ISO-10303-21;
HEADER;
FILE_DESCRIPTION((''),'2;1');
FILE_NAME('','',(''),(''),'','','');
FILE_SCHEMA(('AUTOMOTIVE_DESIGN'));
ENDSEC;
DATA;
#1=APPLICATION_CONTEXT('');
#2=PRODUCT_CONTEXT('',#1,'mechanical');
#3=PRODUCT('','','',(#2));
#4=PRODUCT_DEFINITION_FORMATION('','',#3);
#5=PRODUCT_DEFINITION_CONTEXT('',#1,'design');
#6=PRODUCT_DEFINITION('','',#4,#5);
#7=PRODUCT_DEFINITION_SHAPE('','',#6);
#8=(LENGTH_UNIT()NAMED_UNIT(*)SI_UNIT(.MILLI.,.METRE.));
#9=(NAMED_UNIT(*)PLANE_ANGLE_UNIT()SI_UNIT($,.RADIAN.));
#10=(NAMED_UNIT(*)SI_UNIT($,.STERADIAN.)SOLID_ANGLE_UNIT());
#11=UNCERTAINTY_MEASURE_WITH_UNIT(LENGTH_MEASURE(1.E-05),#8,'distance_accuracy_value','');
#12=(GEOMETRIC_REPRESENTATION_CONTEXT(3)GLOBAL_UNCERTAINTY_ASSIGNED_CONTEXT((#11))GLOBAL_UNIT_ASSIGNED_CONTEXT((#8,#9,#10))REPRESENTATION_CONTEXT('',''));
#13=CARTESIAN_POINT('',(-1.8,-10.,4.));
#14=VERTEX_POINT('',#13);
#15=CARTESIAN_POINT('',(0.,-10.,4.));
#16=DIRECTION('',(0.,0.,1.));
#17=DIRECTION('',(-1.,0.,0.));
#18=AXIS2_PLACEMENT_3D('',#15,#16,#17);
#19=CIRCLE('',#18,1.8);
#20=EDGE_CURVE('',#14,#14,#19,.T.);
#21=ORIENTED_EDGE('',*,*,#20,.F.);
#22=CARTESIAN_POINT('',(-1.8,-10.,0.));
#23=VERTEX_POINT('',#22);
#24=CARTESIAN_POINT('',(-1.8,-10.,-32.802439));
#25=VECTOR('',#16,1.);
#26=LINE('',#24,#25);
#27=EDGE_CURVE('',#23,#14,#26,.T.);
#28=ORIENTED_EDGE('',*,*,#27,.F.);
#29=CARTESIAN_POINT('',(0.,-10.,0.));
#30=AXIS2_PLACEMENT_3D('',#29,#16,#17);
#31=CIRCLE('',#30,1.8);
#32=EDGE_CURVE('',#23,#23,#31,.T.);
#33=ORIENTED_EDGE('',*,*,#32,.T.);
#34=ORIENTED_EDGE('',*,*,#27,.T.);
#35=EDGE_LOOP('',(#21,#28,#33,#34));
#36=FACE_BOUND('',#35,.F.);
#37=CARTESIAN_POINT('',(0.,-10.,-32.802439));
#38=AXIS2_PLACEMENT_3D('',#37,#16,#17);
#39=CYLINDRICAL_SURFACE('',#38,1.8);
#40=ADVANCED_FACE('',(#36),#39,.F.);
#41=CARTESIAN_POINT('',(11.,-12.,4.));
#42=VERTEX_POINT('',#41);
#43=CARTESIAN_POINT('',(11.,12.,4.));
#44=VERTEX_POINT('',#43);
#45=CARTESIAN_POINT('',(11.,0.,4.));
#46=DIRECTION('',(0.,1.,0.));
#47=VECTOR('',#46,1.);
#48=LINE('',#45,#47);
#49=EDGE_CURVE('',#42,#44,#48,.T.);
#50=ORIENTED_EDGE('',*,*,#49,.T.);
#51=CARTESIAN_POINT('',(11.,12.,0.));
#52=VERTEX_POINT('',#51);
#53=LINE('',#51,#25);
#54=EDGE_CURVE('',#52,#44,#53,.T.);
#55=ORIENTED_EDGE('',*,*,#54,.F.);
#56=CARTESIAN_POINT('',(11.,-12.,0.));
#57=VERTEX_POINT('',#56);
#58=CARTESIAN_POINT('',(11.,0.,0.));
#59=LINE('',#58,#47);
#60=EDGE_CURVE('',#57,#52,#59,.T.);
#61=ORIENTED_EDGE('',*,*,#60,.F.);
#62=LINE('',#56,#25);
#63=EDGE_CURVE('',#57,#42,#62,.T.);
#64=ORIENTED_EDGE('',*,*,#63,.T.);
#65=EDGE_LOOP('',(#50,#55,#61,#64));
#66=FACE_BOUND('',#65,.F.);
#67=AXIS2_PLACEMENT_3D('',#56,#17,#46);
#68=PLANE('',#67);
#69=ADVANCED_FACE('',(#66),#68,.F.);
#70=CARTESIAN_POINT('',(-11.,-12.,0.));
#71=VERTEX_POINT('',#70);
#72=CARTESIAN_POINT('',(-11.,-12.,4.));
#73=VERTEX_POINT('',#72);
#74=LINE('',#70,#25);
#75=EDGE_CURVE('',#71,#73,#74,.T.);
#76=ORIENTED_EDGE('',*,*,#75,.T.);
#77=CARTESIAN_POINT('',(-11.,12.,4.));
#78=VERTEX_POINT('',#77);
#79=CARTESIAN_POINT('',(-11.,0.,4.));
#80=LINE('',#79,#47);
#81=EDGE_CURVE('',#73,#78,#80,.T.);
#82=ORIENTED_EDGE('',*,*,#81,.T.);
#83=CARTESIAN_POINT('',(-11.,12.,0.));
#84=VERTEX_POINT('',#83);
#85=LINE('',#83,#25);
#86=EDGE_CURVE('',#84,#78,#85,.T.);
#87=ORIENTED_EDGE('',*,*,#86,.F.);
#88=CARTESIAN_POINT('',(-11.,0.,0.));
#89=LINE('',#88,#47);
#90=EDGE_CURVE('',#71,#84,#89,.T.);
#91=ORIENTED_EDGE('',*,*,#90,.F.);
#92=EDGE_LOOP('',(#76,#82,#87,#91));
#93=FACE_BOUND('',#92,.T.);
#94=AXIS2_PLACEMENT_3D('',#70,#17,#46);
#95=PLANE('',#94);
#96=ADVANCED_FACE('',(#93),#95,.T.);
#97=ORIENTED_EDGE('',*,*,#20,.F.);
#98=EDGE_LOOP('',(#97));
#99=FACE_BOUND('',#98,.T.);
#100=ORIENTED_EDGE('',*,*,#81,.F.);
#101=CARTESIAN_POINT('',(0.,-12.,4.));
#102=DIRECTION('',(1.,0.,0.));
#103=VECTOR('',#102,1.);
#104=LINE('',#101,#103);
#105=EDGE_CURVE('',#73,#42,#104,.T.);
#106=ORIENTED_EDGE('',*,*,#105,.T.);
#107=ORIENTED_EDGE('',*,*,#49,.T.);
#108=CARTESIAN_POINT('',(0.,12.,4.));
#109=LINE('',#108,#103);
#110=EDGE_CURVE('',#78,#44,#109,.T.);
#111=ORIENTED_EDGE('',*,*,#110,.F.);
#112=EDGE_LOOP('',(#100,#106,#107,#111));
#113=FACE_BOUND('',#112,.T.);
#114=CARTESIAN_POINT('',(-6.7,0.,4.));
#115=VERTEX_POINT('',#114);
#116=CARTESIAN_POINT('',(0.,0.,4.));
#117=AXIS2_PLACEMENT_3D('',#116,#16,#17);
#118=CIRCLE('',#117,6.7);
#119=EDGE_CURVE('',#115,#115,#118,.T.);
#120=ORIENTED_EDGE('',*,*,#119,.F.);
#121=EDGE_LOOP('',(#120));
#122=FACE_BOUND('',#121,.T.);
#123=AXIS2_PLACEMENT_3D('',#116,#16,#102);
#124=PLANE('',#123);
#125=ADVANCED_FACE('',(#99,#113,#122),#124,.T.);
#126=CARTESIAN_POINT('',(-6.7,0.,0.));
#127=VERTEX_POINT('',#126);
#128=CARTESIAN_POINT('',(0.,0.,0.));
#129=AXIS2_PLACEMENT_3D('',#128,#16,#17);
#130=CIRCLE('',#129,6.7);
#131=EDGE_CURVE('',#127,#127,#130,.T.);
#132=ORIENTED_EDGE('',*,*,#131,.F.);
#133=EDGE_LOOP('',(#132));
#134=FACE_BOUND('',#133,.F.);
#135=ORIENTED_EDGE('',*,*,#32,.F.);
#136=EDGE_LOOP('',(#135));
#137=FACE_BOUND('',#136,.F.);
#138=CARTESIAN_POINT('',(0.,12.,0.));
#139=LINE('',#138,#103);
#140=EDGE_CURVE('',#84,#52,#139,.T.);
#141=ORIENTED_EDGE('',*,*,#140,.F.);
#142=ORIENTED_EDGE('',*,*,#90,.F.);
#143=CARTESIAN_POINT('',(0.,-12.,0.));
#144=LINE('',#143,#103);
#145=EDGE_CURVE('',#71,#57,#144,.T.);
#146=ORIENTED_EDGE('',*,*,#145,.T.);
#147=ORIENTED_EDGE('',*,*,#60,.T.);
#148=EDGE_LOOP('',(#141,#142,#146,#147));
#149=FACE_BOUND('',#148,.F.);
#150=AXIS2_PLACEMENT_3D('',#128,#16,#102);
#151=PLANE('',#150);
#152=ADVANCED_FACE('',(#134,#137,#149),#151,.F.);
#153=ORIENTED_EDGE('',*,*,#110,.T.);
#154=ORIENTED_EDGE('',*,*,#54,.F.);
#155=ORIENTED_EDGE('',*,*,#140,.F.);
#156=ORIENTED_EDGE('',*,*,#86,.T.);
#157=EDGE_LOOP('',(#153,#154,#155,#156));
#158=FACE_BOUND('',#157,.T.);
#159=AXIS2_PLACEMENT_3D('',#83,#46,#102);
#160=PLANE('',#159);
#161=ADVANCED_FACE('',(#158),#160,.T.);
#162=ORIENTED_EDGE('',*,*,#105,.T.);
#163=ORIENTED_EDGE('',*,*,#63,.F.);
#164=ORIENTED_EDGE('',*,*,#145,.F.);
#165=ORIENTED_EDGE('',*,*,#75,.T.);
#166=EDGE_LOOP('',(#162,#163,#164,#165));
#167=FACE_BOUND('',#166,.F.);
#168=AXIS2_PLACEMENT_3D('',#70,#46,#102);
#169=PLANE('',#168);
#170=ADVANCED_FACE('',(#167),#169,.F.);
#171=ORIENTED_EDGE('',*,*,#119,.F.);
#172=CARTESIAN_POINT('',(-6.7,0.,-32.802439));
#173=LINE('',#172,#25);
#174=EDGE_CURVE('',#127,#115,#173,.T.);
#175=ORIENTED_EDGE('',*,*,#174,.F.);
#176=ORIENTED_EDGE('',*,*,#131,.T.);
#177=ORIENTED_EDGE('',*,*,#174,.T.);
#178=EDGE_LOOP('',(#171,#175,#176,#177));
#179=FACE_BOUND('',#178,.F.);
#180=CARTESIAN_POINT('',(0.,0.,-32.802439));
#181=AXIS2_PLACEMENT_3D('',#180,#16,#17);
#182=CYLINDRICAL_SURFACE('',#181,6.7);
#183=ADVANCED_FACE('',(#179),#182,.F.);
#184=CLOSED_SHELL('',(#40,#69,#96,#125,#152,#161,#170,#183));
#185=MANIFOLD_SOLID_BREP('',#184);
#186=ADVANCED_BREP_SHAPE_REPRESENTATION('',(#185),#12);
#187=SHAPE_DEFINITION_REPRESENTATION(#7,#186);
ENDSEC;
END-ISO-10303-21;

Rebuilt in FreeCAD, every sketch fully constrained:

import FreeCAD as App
import Part
import Sketcher

V = App.Vector

doc = App.newDocument("Part")
body = doc.addObject("PartDesign::Body", "Body")

# Sketch on XY plane
sketch1 = doc.addObject("Sketcher::SketchObject", "Sketch")
body.addObject(sketch1)
sketch1.AttachmentSupport = (doc.XY_Plane, [""])
sketch1.MapMode = "FlatFace"
sketch1.addGeometry([
    Part.LineSegment(V(-11, 12, 0), V(-11, -12, 0)),
    Part.LineSegment(V(-11, -12, 0), V(11, -12, 0)),
    Part.LineSegment(V(11, -12, 0), V(11, 12, 0)),
    Part.LineSegment(V(11, 12, 0), V(-11, 12, 0)),
], False)
sketch1.addConstraint([
    Sketcher.Constraint("Coincident", 0, 2, 1, 1),
    Sketcher.Constraint("Coincident", 1, 2, 2, 1),
    Sketcher.Constraint("Coincident", 2, 2, 3, 1),
    Sketcher.Constraint("Coincident", 3, 2, 0, 1),
    Sketcher.Constraint("Vertical", 0),
    Sketcher.Constraint("Horizontal", 1),
    Sketcher.Constraint("Vertical", 2),
    Sketcher.Constraint("Horizontal", 3),
    Sketcher.Constraint("Symmetric", 0, 2, 2, 2, -1, 1),
    Sketcher.Constraint("DistanceX", 1, 1, 1, 2, 22.0),
    Sketcher.Constraint("DistanceY", 0, 2, 0, 1, 24.0),
])
pad1 = doc.addObject("PartDesign::Pad", "Pad")
body.addObject(pad1)
pad1.Profile = sketch1
pad1.Length = 4

# Sketch on XY plane
sketch2 = doc.addObject("Sketcher::SketchObject", "Sketch001")
body.addObject(sketch2)
sketch2.AttachmentSupport = (doc.XY_Plane, [""])
sketch2.MapMode = "FlatFace"
sketch2.addGeometry(Part.Circle(V(0, 0, 0), V(0, 0, 1), 7), False)
sketch2.addConstraint([
    Sketcher.Constraint("Coincident", 0, 3, -1, 1),
    Sketcher.Constraint("Diameter", 0, 13.4),
])
doc.recompute()
hole = doc.addObject("PartDesign::Hole", "Hole")
body.addObject(hole)
hole.Profile = sketch2
hole.ThreadType = "None"
hole.Diameter = 13.4
hole.DepthType = "ThroughAll"
hole.Reversed = True

# Sketch on XY plane
sketch3 = doc.addObject("Sketcher::SketchObject", "Sketch002")
body.addObject(sketch3)
sketch3.AttachmentSupport = (doc.XY_Plane, [""])
sketch3.MapMode = "FlatFace"
sketch3.addGeometry(Part.Circle(V(0, -10, 0), V(0, 0, 1), 1.8), False)
sketch3.addConstraint([
    Sketcher.Constraint("PointOnObject", 0, 3, -2),
    Sketcher.Constraint("Diameter", 0, 3.6),
    Sketcher.Constraint("DistanceY", 0, 3, -1, 1, 10.0),
])
doc.recompute()
hole2 = doc.addObject("PartDesign::Hole", "Hole001")
body.addObject(hole2)
hole2.Profile = sketch3
hole2.ThreadType = "None"
hole2.Diameter = 3.6
hole2.DepthType = "ThroughAll"
hole2.Reversed = True

doc.recompute()
